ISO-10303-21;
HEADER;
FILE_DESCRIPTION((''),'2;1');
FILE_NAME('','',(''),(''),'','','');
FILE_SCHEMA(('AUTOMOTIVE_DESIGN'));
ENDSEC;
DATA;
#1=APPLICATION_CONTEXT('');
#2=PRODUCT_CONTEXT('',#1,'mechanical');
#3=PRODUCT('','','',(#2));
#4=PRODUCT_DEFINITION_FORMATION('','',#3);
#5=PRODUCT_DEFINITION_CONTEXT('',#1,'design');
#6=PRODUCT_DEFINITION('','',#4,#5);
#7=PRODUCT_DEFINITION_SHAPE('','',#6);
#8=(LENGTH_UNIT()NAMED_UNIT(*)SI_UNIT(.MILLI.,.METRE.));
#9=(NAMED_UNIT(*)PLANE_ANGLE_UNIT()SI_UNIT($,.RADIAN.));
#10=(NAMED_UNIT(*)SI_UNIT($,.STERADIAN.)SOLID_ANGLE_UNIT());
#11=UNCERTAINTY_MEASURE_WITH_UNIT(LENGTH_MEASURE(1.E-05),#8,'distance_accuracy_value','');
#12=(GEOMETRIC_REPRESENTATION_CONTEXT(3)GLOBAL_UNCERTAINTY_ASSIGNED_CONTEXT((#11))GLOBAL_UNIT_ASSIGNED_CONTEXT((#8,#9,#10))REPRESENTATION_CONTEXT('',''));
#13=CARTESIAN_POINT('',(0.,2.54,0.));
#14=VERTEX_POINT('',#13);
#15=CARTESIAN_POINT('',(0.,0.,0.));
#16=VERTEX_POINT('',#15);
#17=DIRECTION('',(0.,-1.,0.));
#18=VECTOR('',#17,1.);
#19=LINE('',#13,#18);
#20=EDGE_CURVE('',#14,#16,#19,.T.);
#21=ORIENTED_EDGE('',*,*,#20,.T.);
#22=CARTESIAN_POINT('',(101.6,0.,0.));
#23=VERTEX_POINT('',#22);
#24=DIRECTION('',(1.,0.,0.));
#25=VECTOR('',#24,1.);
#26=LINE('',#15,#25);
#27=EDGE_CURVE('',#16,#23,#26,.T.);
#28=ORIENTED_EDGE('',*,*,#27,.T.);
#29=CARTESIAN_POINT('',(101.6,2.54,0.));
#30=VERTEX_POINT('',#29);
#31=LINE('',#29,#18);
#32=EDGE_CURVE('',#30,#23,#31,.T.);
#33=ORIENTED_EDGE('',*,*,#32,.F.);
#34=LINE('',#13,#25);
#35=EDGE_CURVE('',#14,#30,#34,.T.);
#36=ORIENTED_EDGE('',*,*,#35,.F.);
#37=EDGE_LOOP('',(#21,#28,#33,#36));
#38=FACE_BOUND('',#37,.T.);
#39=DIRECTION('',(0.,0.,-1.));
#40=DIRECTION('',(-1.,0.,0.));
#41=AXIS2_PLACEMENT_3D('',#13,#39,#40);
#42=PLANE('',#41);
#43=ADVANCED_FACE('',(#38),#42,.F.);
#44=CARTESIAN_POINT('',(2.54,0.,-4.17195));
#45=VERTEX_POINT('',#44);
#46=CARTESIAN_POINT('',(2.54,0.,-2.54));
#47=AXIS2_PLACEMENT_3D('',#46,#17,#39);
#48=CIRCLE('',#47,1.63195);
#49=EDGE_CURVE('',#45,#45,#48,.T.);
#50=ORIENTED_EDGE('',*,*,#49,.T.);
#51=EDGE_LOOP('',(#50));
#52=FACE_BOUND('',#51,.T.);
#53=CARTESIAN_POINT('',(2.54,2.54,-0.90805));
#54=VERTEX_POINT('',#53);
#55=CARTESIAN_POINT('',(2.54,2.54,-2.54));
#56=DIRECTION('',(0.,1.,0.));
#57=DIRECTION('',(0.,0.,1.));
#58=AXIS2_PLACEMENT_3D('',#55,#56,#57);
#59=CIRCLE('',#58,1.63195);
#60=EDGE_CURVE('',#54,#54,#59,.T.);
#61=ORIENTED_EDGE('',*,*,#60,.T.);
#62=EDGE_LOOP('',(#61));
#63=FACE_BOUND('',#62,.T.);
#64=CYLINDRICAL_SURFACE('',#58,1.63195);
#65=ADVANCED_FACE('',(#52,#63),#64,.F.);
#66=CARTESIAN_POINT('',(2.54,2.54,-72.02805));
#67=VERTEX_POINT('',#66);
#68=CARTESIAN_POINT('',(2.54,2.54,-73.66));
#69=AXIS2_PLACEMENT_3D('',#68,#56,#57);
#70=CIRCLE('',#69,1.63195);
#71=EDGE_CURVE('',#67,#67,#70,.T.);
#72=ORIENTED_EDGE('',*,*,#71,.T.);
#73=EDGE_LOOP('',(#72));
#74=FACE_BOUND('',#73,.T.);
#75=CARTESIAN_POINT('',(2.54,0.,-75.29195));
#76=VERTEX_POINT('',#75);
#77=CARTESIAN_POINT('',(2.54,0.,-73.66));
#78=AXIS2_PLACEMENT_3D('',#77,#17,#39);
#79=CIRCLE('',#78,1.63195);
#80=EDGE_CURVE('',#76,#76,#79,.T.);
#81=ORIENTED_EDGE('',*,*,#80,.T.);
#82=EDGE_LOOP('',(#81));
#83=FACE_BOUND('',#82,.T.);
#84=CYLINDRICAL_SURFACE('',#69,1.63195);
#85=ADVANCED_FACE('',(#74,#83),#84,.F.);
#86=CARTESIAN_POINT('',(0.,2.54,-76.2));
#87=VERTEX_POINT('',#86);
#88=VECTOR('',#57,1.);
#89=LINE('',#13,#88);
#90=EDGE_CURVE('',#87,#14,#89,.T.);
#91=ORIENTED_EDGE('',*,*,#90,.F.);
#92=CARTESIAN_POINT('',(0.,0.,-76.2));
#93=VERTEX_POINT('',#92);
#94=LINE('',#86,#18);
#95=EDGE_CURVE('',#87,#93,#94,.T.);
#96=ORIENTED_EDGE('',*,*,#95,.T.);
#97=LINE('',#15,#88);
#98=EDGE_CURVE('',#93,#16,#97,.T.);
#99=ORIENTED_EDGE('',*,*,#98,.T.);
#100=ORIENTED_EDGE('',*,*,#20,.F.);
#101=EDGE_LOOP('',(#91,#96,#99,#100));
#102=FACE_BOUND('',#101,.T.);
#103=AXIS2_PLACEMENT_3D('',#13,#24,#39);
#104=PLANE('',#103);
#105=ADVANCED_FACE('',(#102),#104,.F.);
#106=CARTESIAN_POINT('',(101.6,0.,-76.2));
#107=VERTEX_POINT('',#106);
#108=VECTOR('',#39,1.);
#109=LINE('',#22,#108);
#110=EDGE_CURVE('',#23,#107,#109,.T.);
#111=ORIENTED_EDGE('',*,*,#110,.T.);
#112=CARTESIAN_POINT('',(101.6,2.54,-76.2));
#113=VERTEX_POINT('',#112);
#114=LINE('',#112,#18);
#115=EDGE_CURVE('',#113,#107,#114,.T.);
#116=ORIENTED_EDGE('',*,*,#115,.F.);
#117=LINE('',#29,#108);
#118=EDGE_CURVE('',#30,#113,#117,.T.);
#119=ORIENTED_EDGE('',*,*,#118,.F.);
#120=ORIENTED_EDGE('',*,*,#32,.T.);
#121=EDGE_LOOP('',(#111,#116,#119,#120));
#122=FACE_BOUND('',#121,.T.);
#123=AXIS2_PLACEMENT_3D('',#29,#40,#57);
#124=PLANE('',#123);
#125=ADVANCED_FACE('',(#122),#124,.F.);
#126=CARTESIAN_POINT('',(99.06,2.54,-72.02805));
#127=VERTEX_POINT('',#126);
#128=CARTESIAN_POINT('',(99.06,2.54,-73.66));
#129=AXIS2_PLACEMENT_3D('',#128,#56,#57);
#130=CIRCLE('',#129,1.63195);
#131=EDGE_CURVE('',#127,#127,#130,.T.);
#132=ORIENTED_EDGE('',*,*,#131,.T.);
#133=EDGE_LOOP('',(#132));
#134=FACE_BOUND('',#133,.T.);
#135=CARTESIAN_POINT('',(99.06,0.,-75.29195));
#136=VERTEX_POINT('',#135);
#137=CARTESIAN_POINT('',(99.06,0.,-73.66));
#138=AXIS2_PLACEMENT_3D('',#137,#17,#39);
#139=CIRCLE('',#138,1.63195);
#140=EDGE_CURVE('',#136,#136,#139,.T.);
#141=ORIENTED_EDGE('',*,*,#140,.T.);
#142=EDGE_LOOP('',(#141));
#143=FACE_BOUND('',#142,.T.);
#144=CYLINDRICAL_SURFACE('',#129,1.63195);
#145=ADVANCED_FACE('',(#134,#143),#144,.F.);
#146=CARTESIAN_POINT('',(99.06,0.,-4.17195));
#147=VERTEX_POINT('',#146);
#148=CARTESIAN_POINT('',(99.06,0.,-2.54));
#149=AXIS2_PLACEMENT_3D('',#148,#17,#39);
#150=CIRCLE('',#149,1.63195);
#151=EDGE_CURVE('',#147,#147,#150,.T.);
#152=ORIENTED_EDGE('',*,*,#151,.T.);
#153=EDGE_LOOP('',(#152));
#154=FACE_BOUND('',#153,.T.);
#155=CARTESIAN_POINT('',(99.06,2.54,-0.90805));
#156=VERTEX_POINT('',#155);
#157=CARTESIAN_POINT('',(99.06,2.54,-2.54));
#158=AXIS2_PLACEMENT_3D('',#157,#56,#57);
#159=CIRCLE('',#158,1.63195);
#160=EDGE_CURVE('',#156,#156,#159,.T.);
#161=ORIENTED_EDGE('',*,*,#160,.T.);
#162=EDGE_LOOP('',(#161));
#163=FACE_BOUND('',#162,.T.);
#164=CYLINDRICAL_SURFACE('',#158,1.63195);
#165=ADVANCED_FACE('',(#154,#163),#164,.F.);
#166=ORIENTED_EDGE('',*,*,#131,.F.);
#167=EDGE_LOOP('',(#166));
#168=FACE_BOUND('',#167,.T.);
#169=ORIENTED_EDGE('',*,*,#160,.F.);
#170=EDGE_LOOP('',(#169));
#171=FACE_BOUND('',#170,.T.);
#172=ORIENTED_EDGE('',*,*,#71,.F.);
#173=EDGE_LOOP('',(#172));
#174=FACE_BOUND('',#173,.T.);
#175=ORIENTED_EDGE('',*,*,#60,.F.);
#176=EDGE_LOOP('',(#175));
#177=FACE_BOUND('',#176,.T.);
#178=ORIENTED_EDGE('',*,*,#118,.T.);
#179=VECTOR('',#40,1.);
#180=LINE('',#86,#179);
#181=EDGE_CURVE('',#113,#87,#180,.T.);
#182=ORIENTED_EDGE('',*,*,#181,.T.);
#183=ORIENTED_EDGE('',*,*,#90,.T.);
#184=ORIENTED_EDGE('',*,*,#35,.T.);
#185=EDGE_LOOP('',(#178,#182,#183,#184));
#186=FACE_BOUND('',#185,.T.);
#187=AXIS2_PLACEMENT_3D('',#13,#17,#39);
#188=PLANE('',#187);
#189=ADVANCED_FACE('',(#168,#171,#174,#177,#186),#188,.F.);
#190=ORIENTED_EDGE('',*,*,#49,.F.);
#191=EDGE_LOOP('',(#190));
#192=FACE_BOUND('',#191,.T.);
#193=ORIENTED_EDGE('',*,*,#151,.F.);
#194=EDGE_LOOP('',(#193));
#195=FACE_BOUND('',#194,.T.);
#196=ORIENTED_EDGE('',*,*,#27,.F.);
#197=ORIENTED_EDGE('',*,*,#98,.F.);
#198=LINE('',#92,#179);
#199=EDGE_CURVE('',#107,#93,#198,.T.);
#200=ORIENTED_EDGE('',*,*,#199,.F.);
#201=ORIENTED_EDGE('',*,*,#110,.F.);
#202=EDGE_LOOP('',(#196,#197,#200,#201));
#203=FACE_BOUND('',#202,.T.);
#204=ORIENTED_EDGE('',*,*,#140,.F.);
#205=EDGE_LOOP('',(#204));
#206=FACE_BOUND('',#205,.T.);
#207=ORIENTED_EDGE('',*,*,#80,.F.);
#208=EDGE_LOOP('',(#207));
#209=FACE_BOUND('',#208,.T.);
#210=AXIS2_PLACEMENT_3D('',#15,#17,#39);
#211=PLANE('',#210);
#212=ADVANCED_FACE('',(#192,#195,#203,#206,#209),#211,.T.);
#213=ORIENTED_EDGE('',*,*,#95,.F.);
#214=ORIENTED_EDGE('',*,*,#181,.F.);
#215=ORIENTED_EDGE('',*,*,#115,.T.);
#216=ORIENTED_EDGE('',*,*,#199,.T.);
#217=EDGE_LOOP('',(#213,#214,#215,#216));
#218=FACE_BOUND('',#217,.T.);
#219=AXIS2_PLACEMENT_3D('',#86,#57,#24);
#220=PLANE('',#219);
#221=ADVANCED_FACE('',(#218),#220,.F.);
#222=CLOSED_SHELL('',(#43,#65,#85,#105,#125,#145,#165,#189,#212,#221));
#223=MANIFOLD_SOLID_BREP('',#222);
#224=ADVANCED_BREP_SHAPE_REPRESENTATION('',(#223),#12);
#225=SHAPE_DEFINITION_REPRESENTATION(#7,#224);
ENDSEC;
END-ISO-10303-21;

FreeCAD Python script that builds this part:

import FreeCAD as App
import Part
import Sketcher
Q = App.Units.Quantity


def add_polygon(sketch, points):
    """Adds a closed chain of lines whose ends are joined by coincident constraints."""
    first, n = sketch.GeometryCount, len(points)
    for a, b in zip(points, points[1:] + points[:1]):
        sketch.addGeometry(Part.LineSegment(App.Vector(*a, 0), App.Vector(*b, 0)), False)
    for i in range(n):
        sketch.addConstraint(Sketcher.Constraint("Coincident", first + i, 2, first + (i + 1) % n, 1))

doc = App.newDocument("Part")
params = doc.addObject("Spreadsheet::Sheet", "Params")
for row, (alias, value) in enumerate([
    ("sketch1_width", "4 in"),
    ("sketch1_height", "3 in"),
    ("pad1_length", "0.1 in"),
    ("hole_diameter", "0.1285 in"),
    ("hole_depth", "0.4 in"),
], start=1):
    params.set(f"A{row}", alias)
    params.set(f"B{row}", "=" + value)
    params.setAlias(f"B{row}", alias)

body = doc.addObject("PartDesign::Body", "Body")

sketch1 = body.newObject("Sketcher::SketchObject", "Sketch")
sketch1.AttachmentSupport = (doc.getObject("XZ_Plane"), [""])
sketch1.MapMode = "FlatFace"
add_polygon(sketch1, [(0, -76.2), (0, 0), (101.6, 0), (101.6, -76.2)])
sketch1.addConstraint(Sketcher.Constraint("Vertical", 0))
sketch1.addConstraint(Sketcher.Constraint("Horizontal", 1))
sketch1.addConstraint(Sketcher.Constraint("Vertical", 2))
sketch1.addConstraint(Sketcher.Constraint("Horizontal", 3))
sketch1.addConstraint(Sketcher.Constraint("Coincident", 0, 2, -1, 1))
sketch1.addConstraint(Sketcher.Constraint("DistanceX", 1, 1, 1, 2, Q("4 in")))
sketch1.addConstraint(Sketcher.Constraint("DistanceY", 0, 1, 0, 2, Q("3 in")))
sketch1.setExpression("Constraints[9]", "Params.sketch1_width")
sketch1.setExpression("Constraints[10]", "Params.sketch1_height")
pad1 = body.newObject("PartDesign::Pad", "Pad")
pad1.Profile = sketch1
pad1.setExpression("Length", "Params.pad1_length")
pad1.Reversed = True

sketch2 = body.newObject("Sketcher::SketchObject", "Sketch001")
sketch2.AttachmentSupport = (doc.getObject("XZ_Plane"), [""])
sketch2.MapMode = "FlatFace"
sketch2.AttachmentOffset = App.Placement(App.Vector(0, 0, -0.1 * 25.4), App.Rotation())
sketch2.addGeometry(Part.Circle(App.Vector(2.54, -73.66, 0), App.Vector(0, 0, 1), 1.63195), False)
sketch2.addGeometry(Part.Circle(App.Vector(2.54, -2.54, 0), App.Vector(0, 0, 1), 1.63195), False)
sketch2.addGeometry(Part.Circle(App.Vector(99.06, -73.66, 0), App.Vector(0, 0, 1), 1.63195), False)
sketch2.addGeometry(Part.Circle(App.Vector(99.06, -2.54, 0), App.Vector(0, 0, 1), 1.63195), False)
sketch2.addConstraint(Sketcher.Constraint("Equal", 0, 1))
sketch2.addConstraint(Sketcher.Constraint("Equal", 1, 2))
sketch2.addConstraint(Sketcher.Constraint("Equal", 2, 3))
sketch2.addConstraint(Sketcher.Constraint("Horizontal", 0, 3, 2, 3))
sketch2.addConstraint(Sketcher.Constraint("Horizontal", 1, 3, 3, 3))
sketch2.addConstraint(Sketcher.Constraint("Vertical", 0, 3, 1, 3))
sketch2.addConstraint(Sketcher.Constraint("Vertical", 2, 3, 3, 3))
sketch2.addConstraint(Sketcher.Constraint("Diameter", 0, Q("0.1285 in")))
sketch2.addConstraint(Sketcher.Constraint("DistanceX", -1, 1, 0, 3, Q("0.1 in")))
sketch2.addConstraint(Sketcher.Constraint("DistanceY", 0, 3, -1, 1, Q("2.9 in")))
sketch2.addConstraint(Sketcher.Constraint("DistanceY", 1, 3, -1, 1, Q("0.1 in")))
sketch2.addConstraint(Sketcher.Constraint("DistanceX", -1, 1, 2, 3, Q("3.9 in")))
doc.recompute()
hole = body.newObject("PartDesign::Hole", "Hole")
hole.Profile = sketch2
hole.ThreadType = "None"
hole.setExpression("Diameter", "Params.hole_diameter")
hole.DepthType = "Dimension"
hole.setExpression("Depth", "Params.hole_depth")
hole.DrillPoint = "Angled"
hole.DrillPointAngle = 118
hole.Reversed = True

doc.recompute()
